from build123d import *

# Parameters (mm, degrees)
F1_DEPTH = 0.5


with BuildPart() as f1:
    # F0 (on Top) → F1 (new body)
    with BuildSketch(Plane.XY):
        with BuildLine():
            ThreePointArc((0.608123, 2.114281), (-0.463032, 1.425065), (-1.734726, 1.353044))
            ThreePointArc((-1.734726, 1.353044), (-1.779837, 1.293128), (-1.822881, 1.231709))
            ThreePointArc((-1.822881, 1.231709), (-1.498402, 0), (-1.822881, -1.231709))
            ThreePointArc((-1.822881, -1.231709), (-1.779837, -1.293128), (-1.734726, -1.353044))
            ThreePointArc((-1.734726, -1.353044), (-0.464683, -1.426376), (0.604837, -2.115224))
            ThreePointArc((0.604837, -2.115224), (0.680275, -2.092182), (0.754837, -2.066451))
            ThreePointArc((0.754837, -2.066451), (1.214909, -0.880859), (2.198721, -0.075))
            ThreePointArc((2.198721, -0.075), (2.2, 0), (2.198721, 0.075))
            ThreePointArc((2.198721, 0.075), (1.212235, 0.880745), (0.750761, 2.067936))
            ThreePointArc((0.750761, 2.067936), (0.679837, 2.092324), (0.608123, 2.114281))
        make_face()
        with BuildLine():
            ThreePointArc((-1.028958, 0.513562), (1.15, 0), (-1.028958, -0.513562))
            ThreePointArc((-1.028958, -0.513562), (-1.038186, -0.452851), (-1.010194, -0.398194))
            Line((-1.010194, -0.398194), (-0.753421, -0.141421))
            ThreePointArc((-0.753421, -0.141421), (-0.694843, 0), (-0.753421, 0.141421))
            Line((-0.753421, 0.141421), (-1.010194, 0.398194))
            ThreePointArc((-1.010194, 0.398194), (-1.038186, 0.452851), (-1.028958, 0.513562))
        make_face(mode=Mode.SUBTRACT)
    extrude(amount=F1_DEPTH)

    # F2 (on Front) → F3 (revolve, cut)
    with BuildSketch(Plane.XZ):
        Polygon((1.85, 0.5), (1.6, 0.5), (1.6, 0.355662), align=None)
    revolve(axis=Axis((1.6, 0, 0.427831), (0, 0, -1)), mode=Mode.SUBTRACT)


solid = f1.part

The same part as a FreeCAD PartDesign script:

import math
import FreeCAD as App
import Part
import Sketcher
from FreeCAD import Vector


def add_polygon(sketch, points):
    """Adds a closed chain of lines whose ends are joined by coincident constraints."""
    first, n = sketch.GeometryCount, len(points)
    for a, b in zip(points, points[1:] + points[:1]):
        sketch.addGeometry(Part.LineSegment(App.Vector(*a, 0), App.Vector(*b, 0)), False)
    for i in range(n):
        sketch.addConstraint(Sketcher.Constraint("Coincident", first + i, 2, first + (i + 1) % n, 1))

doc = App.newDocument("Part")
body = doc.addObject("PartDesign::Body", "Body")

sketch1 = body.newObject("Sketcher::SketchObject", "Sketch")
sketch1.AttachmentSupport = (doc.getObject("XY_Plane"), [""])
sketch1.MapMode = "FlatFace"
sketch1.addGeometry(Part.ArcOfCircle(Part.Circle(Vector(-1.235573, 3.802705, 0), Vector(0, 0, 1), 2.499998), math.radians(-101.517144), math.radians(-42.48289)), False)
sketch1.addGeometry(Part.ArcOfCircle(Part.Circle(Vector(0.000795, -0.000577, 0), Vector(0, 0, 1), 2.200982), math.radians(142.047523), math.radians(145.952501)), False)
sketch1.addGeometry(Part.ArcOfCircle(Part.Circle(Vector(-3.9984, 0, 0), Vector(0, 0, 1), 2.499998), math.radians(-29.517146), math.radians(29.517146)), False)
sketch1.addGeometry(Part.ArcOfCircle(Part.Circle(Vector(0.000795, 0.000577, 0), Vector(0, 0, 1), 2.200982), math.radians(-145.952501), math.radians(-142.047523)), False)
sketch1.addGeometry(Part.ArcOfCircle(Part.Circle(Vector(-1.239071, -3.803411, 0), Vector(0, 0, 1), 2.499994), math.radians(42.47561), math.radians(101.435368)), False)
sketch1.addGeometry(Part.ArcOfCircle(Part.Circle(Vector(0.000005, -0.000034, 0), Vector(0, 0, 1), 2.199965), math.radians(-74.042291), math.radians(-69.933495)), False)
sketch1.addGeometry(Part.ArcOfCircle(Part.Circle(Vector(3.2389, -2.348336, 0), Vector(0, 0, 1), 2.500006), math.radians(114.586765), math.radians(173.525918)), False)
sketch1.addGeometry(Part.ArcOfCircle(Part.Circle(Vector(0.000377, 0, 0), Vector(0, 0, 1), 2.199623), math.radians(-1.953979), math.radians(1.953979)), False)
sketch1.addGeometry(Part.ArcOfCircle(Part.Circle(Vector(3.234774, 2.350213, 0), Vector(0, 0, 1), 2.5), math.radians(-173.516855), math.radians(-114.482873)), False)
sketch1.addGeometry(Part.ArcOfCircle(Part.Circle(Vector(-0.000168, -0.000557, 0), Vector(0, 0, 1), 2.200581), math.radians(70.047482), math.radians(73.953169)), False)
sketch1.addGeometry(Part.ArcOfCircle(Part.Circle(Vector(-0.939482, 0.468905, 0), Vector(0, 0, 1), 0.100001), math.radians(153.476459), math.radians(224.999474)), False)
sketch1.addGeometry(Part.ArcOfCircle(Part.Circle(Vector(0, 0, 0), Vector(0, 0, 1), 1.15), math.radians(-153.47581), math.radians(153.47581)), False)
sketch1.addGeometry(Part.ArcOfCircle(Part.Circle(Vector(-0.939482, -0.468905, 0), Vector(0, 0, 1), 0.100001), math.radians(135.000526), math.radians(206.523541)), False)
sketch1.addGeometry(Part.LineSegment(Vector(-1.010194, -0.398194, 0), Vector(-0.753421, -0.141421, 0)), False)
sketch1.addGeometry(Part.ArcOfCircle(Part.Circle(Vector(-0.894844, 0, 0), Vector(0, 0, 1), 0.200001), math.radians(-44.999657), math.radians(44.999657)), False)
sketch1.addGeometry(Part.LineSegment(Vector(-0.753421, 0.141421, 0), Vector(-1.010194, 0.398194, 0)), False)
sketch1.addConstraint(Sketcher.Constraint("Coincident", 0, 1, 1, 1))
sketch1.addConstraint(Sketcher.Constraint("Coincident", 1, 2, 2, 2))
sketch1.addConstraint(Sketcher.Constraint("Coincident", 2, 1, 3, 1))
sketch1.addConstraint(Sketcher.Constraint("Coincident", 3, 2, 4, 2))
sketch1.addConstraint(Sketcher.Constraint("Coincident", 4, 1, 5, 1))
sketch1.addConstraint(Sketcher.Constraint("Coincident", 5, 2, 6, 2))
sketch1.addConstraint(Sketcher.Constraint("Coincident", 6, 1, 7, 1))
sketch1.addConstraint(Sketcher.Constraint("Coincident", 7, 2, 8, 2))
sketch1.addConstraint(Sketcher.Constraint("Coincident", 8, 1, 9, 1))
sketch1.addConstraint(Sketcher.Constraint("Coincident", 9, 2, 0, 2))
sketch1.addConstraint(Sketcher.Constraint("Coincident", 10, 1, 11, 2))
sketch1.addConstraint(Sketcher.Constraint("Coincident", 11, 1, 12, 2))
sketch1.addConstraint(Sketcher.Constraint("Coincident", 12, 1, 13, 1))
sketch1.addConstraint(Sketcher.Constraint("Coincident", 13, 2, 14, 1))
sketch1.addConstraint(Sketcher.Constraint("Coincident", 14, 2, 15, 1))
sketch1.addConstraint(Sketcher.Constraint("Coincident", 15, 2, 10, 2))
sketch1.addConstraint(Sketcher.Constraint("Coincident", 11, 3, -1, 1))
sketch1.addConstraint(Sketcher.Constraint("Equal", 0, 2))
sketch1.addConstraint(Sketcher.Constraint("Equal", 1, 3))
sketch1.addConstraint(Sketcher.Constraint("Equal", 0, 8))
sketch1.addConstraint(Sketcher.Constraint("Equal", 10, 12))
sketch1.addConstraint(Sketcher.Constraint("Symmetric", 1, 3, 3, 3, -1))
sketch1.addConstraint(Sketcher.Constraint("Symmetric", 6, 1, 7, 2, -1))
sketch1.addConstraint(Sketcher.Constraint("Symmetric", 13, 2, 14, 2, -1))
sketch1.addConstraint(Sketcher.Constraint("Symmetric", 12, 1, 15, 2, -1))
sketch1.addConstraint(Sketcher.Constraint("PointOnObject", 2, 3, -1))
sketch1.addConstraint(Sketcher.Constraint("Perpendicular", 13, 15))
sketch1.addConstraint(Sketcher.Constraint("Vertical", 0, 1, 3, 2))
sketch1.addConstraint(Sketcher.Constraint("Vertical", 10, 1, 11, 1))
sketch1.addConstraint(Sketcher.Constraint("Radius", 0, 2.499998))
sketch1.addConstraint(Sketcher.Constraint("Radius", 10, 0.100001))
sketch1.addConstraint(Sketcher.Constraint("Radius", 14, 0.200001))
sketch1.addConstraint(Sketcher.Constraint("Radius", 11, 1.15))
sketch1.addConstraint(Sketcher.Constraint("Radius", 9, 2.200581))
sketch1.addConstraint(Sketcher.Constraint("DistanceX", 4, 1, 5, 2, 0.15))
sketch1.addConstraint(Sketcher.Constraint("DistanceY", 6, 1, 7, 2, 0.15))
sketch1.addConstraint(Sketcher.Constraint("Radius", 1, 2.200982))
sketch1.addConstraint(Sketcher.Constraint("Radius", 4, 2.499994))
sketch1.addConstraint(Sketcher.Constraint("Radius", 5, 2.199965))
sketch1.addConstraint(Sketcher.Constraint("Radius", 6, 2.500006))
sketch1.addConstraint(Sketcher.Constraint("Radius", 7, 2.199623))
sketch1.addConstraint(Sketcher.Constraint("DistanceX", 2, 3, -1, 1, 3.9984))
sketch1.addConstraint(Sketcher.Constraint("DistanceX", -1, 1, 6, 3, 3.2389))
sketch1.addConstraint(Sketcher.Constraint("DistanceY", 6, 3, 5, 3, 2.348302))
sketch1.addConstraint(Sketcher.Constraint("DistanceX", 1, 2, 10, 3, 0.883399))
sketch1.addConstraint(Sketcher.Constraint("DistanceY", 12, 1, 10, 3, 0.867099))
sketch1.addConstraint(Sketcher.Constraint("Distance", 13, 0.363132))
sketch1.addConstraint(Sketcher.Constraint("DistanceX", 4, 3, -1, 1, 1.239071))
sketch1.addConstraint(Sketcher.Constraint("DistanceY", 4, 3, -1, 1, 3.803411))
sketch1.addConstraint(Sketcher.Constraint("DistanceX", 9, 3, -1, 1, 0.000168))
sketch1.addConstraint(Sketcher.Constraint("DistanceX", 10, 3, -1, 1, 0.939482))
sketch1.addConstraint(Sketcher.Constraint("DistanceY", 5, 2, -1, 1, 2.066451))
sketch1.addConstraint(Sketcher.Constraint("DistanceX", -1, 1, 8, 1, 0.750761))
sketch1.addConstraint(Sketcher.Constraint("DistanceY", -1, 1, 9, 2, 2.114281))
sketch1.addConstraint(Sketcher.Constraint("DistanceY", -1, 1, 10, 1, 0.513562))
sketch1.addConstraint(Sketcher.Constraint("DistanceX", 0, 3, 1, 3, 1.236368))
sketch1.addConstraint(Sketcher.Constraint("DistanceY", 1, 3, 0, 3, 3.803282))
pad1 = body.newObject("PartDesign::Pad", "Pad")
pad1.Profile = sketch1
pad1.Length = 0.5

sketch2 = body.newObject("Sketcher::SketchObject", "Sketch001")
sketch2.AttachmentSupport = (doc.getObject("XZ_Plane"), [""])
sketch2.MapMode = "FlatFace"
add_polygon(sketch2, [(1.85, 0.5), (1.6, 0.5), (1.6, 0.36)])
sketch2.addGeometry(Part.LineSegment(Vector(1.6, 0.5, 0), Vector(1.6, 0.36, 0)), True)
sketch2.addConstraint(Sketcher.Constraint("Horizontal", 0))
sketch2.addConstraint(Sketcher.Constraint("Vertical", 1))
sketch2.addConstraint(Sketcher.Constraint("Vertical", 3))
sketch2.addConstraint(Sketcher.Constraint("Coincident", 3, 1, 0, 2))
sketch2.addConstraint(Sketcher.Constraint("Equal", 1, 3))
sketch2.addConstraint(Sketcher.Constraint("DistanceX", 0, 2, 0, 1, 0.25))
sketch2.addConstraint(Sketcher.Constraint("DistanceX", -1, 1, 0, 2, 1.6))
sketch2.addConstraint(Sketcher.Constraint("DistanceY", -1, 1, 0, 2, 0.5))
sketch2.addConstraint(Sketcher.Constraint("DistanceY", 1, 2, 1, 1, 0.144338))
groove = body.newObject("PartDesign::Groove", "Groove")
groove.Profile = sketch2
groove.ReferenceAxis = (sketch2, ["Axis0"])
groove.Angle = 360

doc.recompute()
